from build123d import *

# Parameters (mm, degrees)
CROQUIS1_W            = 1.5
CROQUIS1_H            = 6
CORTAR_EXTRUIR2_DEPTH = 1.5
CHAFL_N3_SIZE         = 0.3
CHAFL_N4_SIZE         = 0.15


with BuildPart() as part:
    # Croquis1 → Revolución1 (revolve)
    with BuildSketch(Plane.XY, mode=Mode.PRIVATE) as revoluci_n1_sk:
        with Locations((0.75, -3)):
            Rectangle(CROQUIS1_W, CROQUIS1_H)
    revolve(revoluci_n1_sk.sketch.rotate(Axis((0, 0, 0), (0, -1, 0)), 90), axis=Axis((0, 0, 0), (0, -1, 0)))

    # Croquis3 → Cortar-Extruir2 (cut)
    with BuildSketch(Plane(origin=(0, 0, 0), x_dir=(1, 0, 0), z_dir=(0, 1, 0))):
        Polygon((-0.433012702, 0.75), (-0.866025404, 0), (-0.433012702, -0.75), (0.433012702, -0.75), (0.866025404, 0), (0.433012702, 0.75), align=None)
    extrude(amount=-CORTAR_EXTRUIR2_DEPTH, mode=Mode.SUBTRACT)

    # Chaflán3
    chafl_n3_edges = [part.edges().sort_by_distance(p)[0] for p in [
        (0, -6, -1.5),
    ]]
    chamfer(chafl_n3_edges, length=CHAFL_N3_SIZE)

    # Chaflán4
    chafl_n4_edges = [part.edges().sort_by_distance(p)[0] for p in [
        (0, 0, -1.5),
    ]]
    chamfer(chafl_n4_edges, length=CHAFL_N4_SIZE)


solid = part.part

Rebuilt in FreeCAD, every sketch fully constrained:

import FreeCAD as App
import Part
import Sketcher
from FreeCAD import Vector
Q = App.Units.Quantity


def edges_at(feature, points):
    """Names of the edges that pass closest to the given points."""
    edges = feature.Shape.Edges
    near = lambda p: min(range(len(edges)), key=lambda i: edges[i].distToShape(Part.Vertex(*p))[0])
    return sorted({f"Edge{near(p) + 1}" for p in points})

doc = App.newDocument("Part")
body = doc.addObject("PartDesign::Body", "Body")

sketch1 = doc.addObject("Sketcher::SketchObject", "Sketch")
body.addObject(sketch1)
sketch1.AttachmentSupport = (doc.XY_Plane, [""])
sketch1.MapMode = "FlatFace"
sketch1.addGeometry([
    Part.LineSegment(Vector(0, 0, 0), Vector(0, -6, 0)),
    Part.LineSegment(Vector(0, -6, 0), Vector(1.5, -6, 0)),
    Part.LineSegment(Vector(1.5, -6, 0), Vector(1.5, 0, 0)),
    Part.LineSegment(Vector(1.5, 0, 0), Vector(0, 0, 0)),
], False)
sketch1.addConstraint([
    Sketcher.Constraint("Coincident", 0, 2, 1, 1),
    Sketcher.Constraint("Coincident", 1, 2, 2, 1),
    Sketcher.Constraint("Coincident", 2, 2, 3, 1),
    Sketcher.Constraint("Coincident", 3, 2, 0, 1),
    Sketcher.Constraint("Vertical", 0),
    Sketcher.Constraint("Horizontal", 1),
    Sketcher.Constraint("Vertical", 2),
    Sketcher.Constraint("Horizontal", 3),
    Sketcher.Constraint("Coincident", 3, 2, -1, 1),
    Sketcher.Constraint("DistanceY", 0, 2, 0, 1, 6.0),
    Sketcher.Constraint("DistanceX", 1, 1, 1, 2, 1.5),
])
revolution = doc.addObject("PartDesign::Revolution", "Revolution")
body.addObject(revolution)
revolution.Profile = sketch1
revolution.ReferenceAxis = (sketch1, ["V_Axis"])
revolution.Angle = 360

sketch2 = doc.addObject("Sketcher::SketchObject", "Sketch001")
body.addObject(sketch2)
sketch2.AttachmentSupport = (doc.XZ_Plane, [""])
sketch2.MapMode = "FlatFace"
sketch2.addGeometry([
    Part.LineSegment(Vector(-0.4, -0.8, 0), Vector(-0.9, 0, 0)),
    Part.LineSegment(Vector(-0.9, 0, 0), Vector(-0.4, 0.8, 0)),
    Part.LineSegment(Vector(-0.4, 0.8, 0), Vector(0.4, 0.8, 0)),
    Part.LineSegment(Vector(0.4, 0.8, 0), Vector(0.9, 0, 0)),
    Part.LineSegment(Vector(0.9, 0, 0), Vector(0.4, -0.8, 0)),
    Part.LineSegment(Vector(0.4, -0.8, 0), Vector(-0.4, -0.8, 0)),
], False)
sketch2.addConstraint([
    Sketcher.Constraint("Coincident", 0, 2, 1, 1),
    Sketcher.Constraint("Coincident", 1, 2, 2, 1),
    Sketcher.Constraint("Coincident", 2, 2, 3, 1),
    Sketcher.Constraint("Coincident", 3, 2, 4, 1),
    Sketcher.Constraint("Coincident", 4, 2, 5, 1),
    Sketcher.Constraint("Coincident", 5, 2, 0, 1),
    Sketcher.Constraint("Horizontal", 2),
    Sketcher.Constraint("Horizontal", 5),
    Sketcher.Constraint("Symmetric", 0, 2, 3, 2, -1, 1),
    Sketcher.Constraint("Symmetric", 1, 2, 4, 2, -1, 1),
    Sketcher.Constraint("PointOnObject", 0, 2, -1),
    Sketcher.Constraint("Parallel", 0, 3),
    Sketcher.Constraint("Vertical", 2, 2, 4, 2),
    Sketcher.Constraint("Angle", 0, Q("120 deg")),
    Sketcher.Constraint("DistanceY", 4, 2, 2, 2, 1.5),
    Sketcher.Constraint("DistanceX", 2, 1, 2, 2, 0.866025),
])
pocket1 = doc.addObject("PartDesign::Pocket", "Pocket")
body.addObject(pocket1)
pocket1.Profile = sketch2
pocket1.Length = 1.5
pocket1.Reversed = True
doc.recompute()

chamfer = doc.addObject("PartDesign::Chamfer", "Chamfer")
body.addObject(chamfer)
chamfer.Base = (pocket1, edges_at(pocket1, [(0, -6, -1.5)]))
chamfer.Size = 0.3
doc.recompute()

chamfer2 = doc.addObject("PartDesign::Chamfer", "Chamfer001")
body.addObject(chamfer2)
chamfer2.Base = (chamfer, edges_at(chamfer, [(0, 0, -1.5)]))
chamfer2.Size = 0.15

doc.recompute()
